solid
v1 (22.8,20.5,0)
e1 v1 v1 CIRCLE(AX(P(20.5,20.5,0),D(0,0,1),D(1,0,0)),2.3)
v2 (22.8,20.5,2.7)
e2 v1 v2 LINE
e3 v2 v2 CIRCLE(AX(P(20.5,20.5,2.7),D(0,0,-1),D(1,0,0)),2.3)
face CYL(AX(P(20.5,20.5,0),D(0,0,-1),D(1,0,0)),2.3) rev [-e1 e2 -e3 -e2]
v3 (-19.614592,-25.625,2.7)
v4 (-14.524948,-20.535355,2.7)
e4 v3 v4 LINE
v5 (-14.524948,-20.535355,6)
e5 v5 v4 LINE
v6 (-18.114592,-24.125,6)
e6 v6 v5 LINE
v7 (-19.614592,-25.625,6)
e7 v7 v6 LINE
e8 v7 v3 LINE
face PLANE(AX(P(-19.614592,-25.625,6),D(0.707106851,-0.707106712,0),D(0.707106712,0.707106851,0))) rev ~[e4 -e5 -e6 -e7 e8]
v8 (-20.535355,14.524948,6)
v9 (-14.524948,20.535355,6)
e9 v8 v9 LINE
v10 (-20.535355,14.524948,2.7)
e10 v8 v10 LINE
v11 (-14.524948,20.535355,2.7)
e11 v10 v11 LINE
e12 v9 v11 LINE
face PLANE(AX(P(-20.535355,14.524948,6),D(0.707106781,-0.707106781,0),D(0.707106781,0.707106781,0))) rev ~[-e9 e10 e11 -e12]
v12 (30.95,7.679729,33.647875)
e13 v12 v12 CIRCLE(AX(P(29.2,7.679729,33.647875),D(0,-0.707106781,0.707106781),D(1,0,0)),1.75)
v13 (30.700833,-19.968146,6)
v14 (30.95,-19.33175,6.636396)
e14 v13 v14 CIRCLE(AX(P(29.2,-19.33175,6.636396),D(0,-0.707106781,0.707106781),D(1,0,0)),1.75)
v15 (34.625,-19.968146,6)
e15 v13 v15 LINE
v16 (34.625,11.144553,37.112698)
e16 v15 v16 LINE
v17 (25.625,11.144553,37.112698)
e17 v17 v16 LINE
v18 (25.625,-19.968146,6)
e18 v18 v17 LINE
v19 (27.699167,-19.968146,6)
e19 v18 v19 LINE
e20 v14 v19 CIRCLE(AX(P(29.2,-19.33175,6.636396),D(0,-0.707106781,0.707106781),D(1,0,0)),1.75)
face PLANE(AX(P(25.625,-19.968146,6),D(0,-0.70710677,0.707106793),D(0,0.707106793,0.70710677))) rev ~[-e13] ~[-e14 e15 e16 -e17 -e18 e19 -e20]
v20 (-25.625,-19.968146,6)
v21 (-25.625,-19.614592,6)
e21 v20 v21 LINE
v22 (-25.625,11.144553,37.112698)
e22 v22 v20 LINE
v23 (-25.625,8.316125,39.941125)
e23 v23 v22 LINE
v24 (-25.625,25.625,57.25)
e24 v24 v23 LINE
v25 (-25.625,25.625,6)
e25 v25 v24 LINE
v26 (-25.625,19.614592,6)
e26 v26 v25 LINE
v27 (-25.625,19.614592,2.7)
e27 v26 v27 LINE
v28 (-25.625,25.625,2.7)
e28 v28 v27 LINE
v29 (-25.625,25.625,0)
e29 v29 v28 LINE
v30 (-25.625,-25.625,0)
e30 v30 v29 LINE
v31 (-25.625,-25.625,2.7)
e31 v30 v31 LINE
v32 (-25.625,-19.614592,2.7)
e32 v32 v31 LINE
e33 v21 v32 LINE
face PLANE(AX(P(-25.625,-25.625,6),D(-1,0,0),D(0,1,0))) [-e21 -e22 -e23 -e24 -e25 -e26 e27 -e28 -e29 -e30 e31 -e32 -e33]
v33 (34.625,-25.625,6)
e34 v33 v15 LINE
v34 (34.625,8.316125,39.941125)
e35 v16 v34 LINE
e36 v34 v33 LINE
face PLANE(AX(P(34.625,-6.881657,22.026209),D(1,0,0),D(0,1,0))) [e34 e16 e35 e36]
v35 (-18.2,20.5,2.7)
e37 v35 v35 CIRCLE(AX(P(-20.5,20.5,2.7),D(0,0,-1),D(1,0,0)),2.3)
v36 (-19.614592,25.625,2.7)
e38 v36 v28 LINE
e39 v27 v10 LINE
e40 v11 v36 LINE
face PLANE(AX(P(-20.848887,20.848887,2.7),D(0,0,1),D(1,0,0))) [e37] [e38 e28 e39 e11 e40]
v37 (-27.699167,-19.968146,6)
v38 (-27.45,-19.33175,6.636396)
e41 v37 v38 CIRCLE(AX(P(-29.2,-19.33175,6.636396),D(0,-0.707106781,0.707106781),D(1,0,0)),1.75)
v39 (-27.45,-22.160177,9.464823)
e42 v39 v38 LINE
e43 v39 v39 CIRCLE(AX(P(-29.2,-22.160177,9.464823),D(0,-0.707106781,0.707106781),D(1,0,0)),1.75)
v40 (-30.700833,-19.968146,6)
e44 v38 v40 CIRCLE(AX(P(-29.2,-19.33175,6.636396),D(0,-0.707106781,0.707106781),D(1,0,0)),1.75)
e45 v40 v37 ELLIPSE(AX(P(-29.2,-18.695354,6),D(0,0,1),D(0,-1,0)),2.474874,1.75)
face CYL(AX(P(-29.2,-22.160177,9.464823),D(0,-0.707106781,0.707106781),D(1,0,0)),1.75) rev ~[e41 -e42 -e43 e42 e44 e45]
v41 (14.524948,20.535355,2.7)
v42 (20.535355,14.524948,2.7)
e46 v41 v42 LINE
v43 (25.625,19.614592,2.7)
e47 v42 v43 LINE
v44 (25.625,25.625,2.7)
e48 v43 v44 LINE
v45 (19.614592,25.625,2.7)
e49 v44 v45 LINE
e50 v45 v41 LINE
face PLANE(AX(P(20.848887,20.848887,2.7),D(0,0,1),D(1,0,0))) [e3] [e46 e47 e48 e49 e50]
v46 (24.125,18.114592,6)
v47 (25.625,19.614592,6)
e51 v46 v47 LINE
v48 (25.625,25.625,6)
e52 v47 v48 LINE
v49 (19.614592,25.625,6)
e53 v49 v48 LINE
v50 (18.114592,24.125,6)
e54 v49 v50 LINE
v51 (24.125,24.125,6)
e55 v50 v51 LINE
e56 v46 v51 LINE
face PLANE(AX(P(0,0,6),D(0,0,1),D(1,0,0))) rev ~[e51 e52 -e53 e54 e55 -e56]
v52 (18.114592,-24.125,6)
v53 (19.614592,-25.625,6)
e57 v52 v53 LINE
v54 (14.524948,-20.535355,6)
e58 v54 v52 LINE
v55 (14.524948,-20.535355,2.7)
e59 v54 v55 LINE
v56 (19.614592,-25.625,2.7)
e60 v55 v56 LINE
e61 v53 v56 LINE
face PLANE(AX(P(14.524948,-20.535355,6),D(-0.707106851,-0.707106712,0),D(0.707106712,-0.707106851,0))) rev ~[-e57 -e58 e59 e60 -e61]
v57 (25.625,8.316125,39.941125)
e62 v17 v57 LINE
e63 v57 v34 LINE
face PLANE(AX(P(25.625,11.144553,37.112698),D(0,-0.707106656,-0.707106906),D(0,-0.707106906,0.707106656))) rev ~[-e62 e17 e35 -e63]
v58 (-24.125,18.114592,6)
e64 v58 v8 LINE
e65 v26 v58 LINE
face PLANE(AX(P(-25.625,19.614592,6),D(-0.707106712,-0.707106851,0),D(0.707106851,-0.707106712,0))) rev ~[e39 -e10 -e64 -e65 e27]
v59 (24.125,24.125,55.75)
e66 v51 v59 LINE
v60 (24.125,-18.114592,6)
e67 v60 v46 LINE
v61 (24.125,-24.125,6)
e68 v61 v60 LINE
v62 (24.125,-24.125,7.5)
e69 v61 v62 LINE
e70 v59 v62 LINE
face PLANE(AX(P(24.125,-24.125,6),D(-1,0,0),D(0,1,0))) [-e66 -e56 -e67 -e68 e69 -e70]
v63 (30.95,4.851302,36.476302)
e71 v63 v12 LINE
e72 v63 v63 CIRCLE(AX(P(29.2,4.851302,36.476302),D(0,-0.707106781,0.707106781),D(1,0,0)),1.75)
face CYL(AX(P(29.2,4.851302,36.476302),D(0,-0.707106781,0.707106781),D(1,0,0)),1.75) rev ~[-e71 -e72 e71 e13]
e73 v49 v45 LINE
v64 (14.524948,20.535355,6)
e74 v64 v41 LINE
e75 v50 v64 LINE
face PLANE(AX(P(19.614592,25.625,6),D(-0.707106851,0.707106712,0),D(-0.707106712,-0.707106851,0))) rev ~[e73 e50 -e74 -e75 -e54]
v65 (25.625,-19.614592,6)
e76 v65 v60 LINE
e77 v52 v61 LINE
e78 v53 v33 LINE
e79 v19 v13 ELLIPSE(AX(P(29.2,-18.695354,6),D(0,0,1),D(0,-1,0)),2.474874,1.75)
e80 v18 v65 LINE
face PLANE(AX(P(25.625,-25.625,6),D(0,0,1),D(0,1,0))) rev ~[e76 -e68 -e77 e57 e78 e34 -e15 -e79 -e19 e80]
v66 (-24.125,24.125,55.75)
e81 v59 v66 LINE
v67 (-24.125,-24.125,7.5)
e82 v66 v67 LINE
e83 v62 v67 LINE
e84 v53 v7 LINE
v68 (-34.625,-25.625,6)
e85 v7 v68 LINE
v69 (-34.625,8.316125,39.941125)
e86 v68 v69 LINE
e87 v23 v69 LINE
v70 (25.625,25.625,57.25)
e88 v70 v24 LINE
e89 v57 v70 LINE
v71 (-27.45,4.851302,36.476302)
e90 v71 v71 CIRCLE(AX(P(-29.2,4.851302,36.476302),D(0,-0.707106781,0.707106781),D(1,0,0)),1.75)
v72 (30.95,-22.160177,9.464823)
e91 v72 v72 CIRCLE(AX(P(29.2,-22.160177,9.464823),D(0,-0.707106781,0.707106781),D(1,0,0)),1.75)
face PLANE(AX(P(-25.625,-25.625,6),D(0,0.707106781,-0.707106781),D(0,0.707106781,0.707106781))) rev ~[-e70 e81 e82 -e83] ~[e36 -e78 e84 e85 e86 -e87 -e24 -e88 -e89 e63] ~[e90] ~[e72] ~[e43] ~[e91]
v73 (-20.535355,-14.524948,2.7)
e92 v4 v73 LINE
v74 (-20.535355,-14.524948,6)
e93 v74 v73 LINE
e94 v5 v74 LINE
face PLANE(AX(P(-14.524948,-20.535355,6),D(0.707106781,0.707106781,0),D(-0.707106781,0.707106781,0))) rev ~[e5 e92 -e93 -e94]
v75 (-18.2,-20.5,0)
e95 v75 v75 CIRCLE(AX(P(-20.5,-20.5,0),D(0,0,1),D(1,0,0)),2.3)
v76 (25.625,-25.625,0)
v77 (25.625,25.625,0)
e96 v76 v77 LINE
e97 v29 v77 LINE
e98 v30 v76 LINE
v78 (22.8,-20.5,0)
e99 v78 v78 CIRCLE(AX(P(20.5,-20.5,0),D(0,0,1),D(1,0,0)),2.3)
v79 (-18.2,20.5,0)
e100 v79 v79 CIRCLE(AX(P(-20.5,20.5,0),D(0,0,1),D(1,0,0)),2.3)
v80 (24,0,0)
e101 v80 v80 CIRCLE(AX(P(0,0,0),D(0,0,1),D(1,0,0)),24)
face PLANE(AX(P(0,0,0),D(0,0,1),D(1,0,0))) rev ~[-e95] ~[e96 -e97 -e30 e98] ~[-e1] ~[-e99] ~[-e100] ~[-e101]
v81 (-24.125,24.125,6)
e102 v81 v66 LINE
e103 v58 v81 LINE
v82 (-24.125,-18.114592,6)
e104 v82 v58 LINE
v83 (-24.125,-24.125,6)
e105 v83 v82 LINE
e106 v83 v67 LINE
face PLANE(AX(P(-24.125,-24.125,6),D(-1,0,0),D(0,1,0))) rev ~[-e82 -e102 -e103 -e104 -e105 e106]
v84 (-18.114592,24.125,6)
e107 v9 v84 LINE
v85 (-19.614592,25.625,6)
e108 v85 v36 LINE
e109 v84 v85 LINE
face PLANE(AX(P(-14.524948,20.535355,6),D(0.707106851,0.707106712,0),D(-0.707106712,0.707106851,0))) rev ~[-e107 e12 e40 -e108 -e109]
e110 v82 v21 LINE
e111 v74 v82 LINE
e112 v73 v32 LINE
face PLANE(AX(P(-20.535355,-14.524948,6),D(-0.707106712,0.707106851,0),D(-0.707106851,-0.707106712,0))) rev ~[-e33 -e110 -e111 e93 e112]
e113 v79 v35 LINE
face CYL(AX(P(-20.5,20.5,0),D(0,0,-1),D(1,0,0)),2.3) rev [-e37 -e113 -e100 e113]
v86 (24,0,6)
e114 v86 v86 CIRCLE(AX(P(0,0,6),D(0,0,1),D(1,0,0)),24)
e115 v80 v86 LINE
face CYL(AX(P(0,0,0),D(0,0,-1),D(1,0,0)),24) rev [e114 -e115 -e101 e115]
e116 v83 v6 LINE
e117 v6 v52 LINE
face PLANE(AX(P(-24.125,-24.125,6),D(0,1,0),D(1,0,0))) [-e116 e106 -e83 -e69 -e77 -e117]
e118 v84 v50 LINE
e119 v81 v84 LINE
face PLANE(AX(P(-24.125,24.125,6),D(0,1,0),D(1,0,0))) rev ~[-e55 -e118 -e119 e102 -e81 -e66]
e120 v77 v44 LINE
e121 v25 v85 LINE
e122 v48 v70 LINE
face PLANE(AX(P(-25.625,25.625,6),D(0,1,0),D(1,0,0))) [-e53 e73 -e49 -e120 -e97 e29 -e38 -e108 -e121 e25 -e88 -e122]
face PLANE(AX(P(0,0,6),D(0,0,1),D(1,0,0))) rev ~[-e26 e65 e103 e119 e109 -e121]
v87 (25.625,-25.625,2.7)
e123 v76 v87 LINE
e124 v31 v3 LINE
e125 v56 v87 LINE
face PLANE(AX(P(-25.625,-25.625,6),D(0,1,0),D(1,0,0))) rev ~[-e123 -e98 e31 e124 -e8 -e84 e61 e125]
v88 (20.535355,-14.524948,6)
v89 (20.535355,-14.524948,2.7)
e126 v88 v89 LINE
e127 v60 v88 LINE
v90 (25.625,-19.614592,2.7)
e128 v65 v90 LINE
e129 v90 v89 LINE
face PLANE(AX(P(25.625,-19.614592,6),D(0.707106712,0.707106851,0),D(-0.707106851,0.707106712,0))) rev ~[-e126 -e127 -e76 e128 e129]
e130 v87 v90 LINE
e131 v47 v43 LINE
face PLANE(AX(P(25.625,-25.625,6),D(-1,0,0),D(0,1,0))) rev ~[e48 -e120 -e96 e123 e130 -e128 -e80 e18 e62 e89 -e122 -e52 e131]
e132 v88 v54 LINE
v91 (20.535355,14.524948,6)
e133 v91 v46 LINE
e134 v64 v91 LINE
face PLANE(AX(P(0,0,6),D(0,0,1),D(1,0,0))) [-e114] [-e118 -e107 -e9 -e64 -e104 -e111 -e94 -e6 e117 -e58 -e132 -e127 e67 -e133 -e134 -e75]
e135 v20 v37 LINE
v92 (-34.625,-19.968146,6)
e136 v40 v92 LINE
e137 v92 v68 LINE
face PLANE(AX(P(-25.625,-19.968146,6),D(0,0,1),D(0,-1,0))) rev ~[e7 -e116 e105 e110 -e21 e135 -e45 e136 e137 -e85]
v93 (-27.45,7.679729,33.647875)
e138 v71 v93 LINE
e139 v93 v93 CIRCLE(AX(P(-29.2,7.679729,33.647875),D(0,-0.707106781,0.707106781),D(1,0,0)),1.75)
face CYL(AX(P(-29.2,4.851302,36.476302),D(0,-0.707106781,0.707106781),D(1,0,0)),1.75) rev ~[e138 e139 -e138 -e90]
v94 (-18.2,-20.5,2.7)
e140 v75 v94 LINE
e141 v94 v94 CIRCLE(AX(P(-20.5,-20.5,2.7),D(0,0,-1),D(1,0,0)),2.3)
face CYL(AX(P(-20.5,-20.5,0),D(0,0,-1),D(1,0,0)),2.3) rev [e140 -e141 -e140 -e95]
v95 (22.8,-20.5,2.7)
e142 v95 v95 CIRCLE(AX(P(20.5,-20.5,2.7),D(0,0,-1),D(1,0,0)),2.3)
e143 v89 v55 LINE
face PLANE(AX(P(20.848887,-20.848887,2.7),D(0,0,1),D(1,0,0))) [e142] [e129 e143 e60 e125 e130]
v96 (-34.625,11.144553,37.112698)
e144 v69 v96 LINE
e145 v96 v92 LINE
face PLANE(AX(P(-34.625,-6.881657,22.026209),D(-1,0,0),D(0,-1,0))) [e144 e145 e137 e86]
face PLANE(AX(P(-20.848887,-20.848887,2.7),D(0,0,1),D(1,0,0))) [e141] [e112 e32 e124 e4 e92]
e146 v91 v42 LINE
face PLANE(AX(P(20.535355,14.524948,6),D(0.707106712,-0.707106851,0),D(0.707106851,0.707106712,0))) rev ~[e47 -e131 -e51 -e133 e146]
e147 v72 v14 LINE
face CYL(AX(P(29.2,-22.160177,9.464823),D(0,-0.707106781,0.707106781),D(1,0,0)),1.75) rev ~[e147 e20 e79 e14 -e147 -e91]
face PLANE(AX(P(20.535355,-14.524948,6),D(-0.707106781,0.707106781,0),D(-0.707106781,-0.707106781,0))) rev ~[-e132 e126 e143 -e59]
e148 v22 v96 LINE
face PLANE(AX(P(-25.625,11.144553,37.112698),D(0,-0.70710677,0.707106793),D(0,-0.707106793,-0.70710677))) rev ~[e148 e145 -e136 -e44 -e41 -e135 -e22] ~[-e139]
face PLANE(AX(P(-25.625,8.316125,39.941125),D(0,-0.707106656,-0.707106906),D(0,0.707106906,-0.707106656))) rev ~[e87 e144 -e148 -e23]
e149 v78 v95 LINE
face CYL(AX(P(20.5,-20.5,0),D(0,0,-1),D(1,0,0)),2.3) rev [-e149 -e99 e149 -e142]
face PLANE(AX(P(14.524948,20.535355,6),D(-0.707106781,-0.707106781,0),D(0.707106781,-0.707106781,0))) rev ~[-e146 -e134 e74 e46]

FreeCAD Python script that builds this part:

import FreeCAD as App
import Part
import Sketcher
Q = App.Units.Quantity


def add_polygon(sketch, points):
    """Adds a closed chain of lines whose ends are joined by coincident constraints."""
    first, n = sketch.GeometryCount, len(points)
    for a, b in zip(points, points[1:] + points[:1]):
        sketch.addGeometry(Part.LineSegment(App.Vector(*a, 0), App.Vector(*b, 0)), False)
    for i in range(n):
        sketch.addConstraint(Sketcher.Constraint("Coincident", first + i, 2, first + (i + 1) % n, 1))

doc = App.newDocument("Part")
body = doc.addObject("PartDesign::Body", "Body")

sketch1 = body.newObject("Sketcher::SketchObject", "Sketch")
sketch1.AttachmentSupport = (doc.getObject("XY_Plane"), [""])
sketch1.MapMode = "FlatFace"
add_polygon(sketch1, [(-25.6, 25.6), (-25.6, -25.6), (25.6, -25.6), (25.6, 25.6)])
sketch1.addGeometry(Part.Circle(App.Vector(-20.5, -20.5, 0), App.Vector(0, 0, 1), 2.3), False)
sketch1.addGeometry(Part.Circle(App.Vector(20.5, -20.5, 0), App.Vector(0, 0, 1), 2.3), False)
sketch1.addGeometry(Part.Circle(App.Vector(-20.5, 20.5, 0), App.Vector(0, 0, 1), 2.3), False)
sketch1.addGeometry(Part.Circle(App.Vector(0, 0, 0), App.Vector(0, 0, 1), 24), False)
sketch1.addGeometry(Part.Circle(App.Vector(20.5, 20.5, 0), App.Vector(0, 0, 1), 2.3), False)
sketch1.addConstraint([
    Sketcher.Constraint("Vertical", 0),
    Sketcher.Constraint("Horizontal", 1),
    Sketcher.Constraint("Vertical", 2),
    Sketcher.Constraint("Horizontal", 3),
    Sketcher.Constraint("Coincident", 7, 3, -1, 1),
    Sketcher.Constraint("Equal", 4, 5),
    Sketcher.Constraint("Equal", 5, 6),
    Sketcher.Constraint("Equal", 6, 8),
    Sketcher.Constraint("Symmetric", 5, 3, 6, 3, -1, 1),
    Sketcher.Constraint("Symmetric", 4, 3, 8, 3, -1, 1),
    Sketcher.Constraint("Symmetric", 0, 2, 2, 2, -1, 1),
    Sketcher.Constraint("Symmetric", 4, 3, 5, 3, -2),
    Sketcher.Constraint("Equal", 3, 0),
    Sketcher.Constraint("Diameter", 7, Q("48 mm")),
    Sketcher.Constraint("Diameter", 4, Q("4.6 mm")),
    Sketcher.Constraint("DistanceX", 4, 3, 5, 3, Q("41 mm")),
    Sketcher.Constraint("DistanceY", 4, 3, 6, 3, Q("41 mm")),
    Sketcher.Constraint("DistanceX", 1, 1, 1, 2, Q("51.25 mm")),
])
pad1 = body.newObject("PartDesign::Pad", "Pad")
pad1.Profile = sketch1
pad1.Length = 6

sketch2 = body.newObject("Sketcher::SketchObject", "Sketch001")
sketch2.AttachmentSupport = (doc.getObject("XY_Plane"), [""])
sketch2.MapMode = "FlatFace"
sketch2.AttachmentOffset = App.Placement(App.Vector(0, 0, 6), App.Rotation())
add_polygon(sketch2, [(-26, 26), (-26, 20), (-21, 15), (-15, 21), (-20, 26)])
add_polygon(sketch2, [(20, 26), (15, 21), (21, 15), (26, 20), (26, 26)])
add_polygon(sketch2, [(26, -26), (26, -20), (21, -15), (15, -21), (20, -26)])
add_polygon(sketch2, [(-15, -21), (-21, -15), (-26, -20), (-26, -26), (-20, -26)])
sketch2.addConstraint([
    Sketcher.Constraint("Vertical", 0),
    Sketcher.Constraint("Horizontal", 4),
    Sketcher.Constraint("Vertical", 8),
    Sketcher.Constraint("Horizontal", 9),
    Sketcher.Constraint("Vertical", 10),
    Sketcher.Constraint("Horizontal", 14),
    Sketcher.Constraint("Vertical", 17),
    Sketcher.Constraint("Horizontal", 18),
    Sketcher.Constraint("Symmetric", 0, 2, 10, 2, -1, 1),
    Sketcher.Constraint("Symmetric", 1, 2, 11, 2, -1, 1),
    Sketcher.Constraint("Symmetric", 2, 2, 12, 2, -1, 1),
    Sketcher.Constraint("Symmetric", 3, 2, 13, 2, -1, 1),
    Sketcher.Constraint("Symmetric", 6, 2, 15, 2, -1, 1),
    Sketcher.Constraint("Symmetric", 7, 2, 16, 2, -1, 1),
    Sketcher.Constraint("Symmetric", 9, 2, 18, 2, -1, 1),
    Sketcher.Constraint("Symmetric", 5, 2, 19, 2, -1, 1),
    Sketcher.Constraint("Symmetric", 2, 2, 5, 2, -2),
    Sketcher.Constraint("Symmetric", 1, 2, 6, 2, -2),
    Sketcher.Constraint("Symmetric", 0, 2, 7, 2, -2),
    Sketcher.Constraint("Symmetric", 3, 2, 9, 2, -2),
    Sketcher.Constraint("Perpendicular", 1, 2),
    Sketcher.Constraint("Perpendicular", 2, 3),
    Sketcher.Constraint("Perpendicular", 3, 5),
    Sketcher.Constraint("Equal", 18, 0),
    Sketcher.Constraint("Distance", 2, Q("8.499999 mm")),
    Sketcher.Constraint("DistanceX", 0, 2, -1, 1, Q("25.625 mm")),
    Sketcher.Constraint("DistanceY", -1, 1, 3, 2, Q("25.625 mm")),
    Sketcher.Constraint("DistanceX", 3, 2, 5, 2, Q("34.13954 mm")),
])
pocket1 = body.newObject("PartDesign::Pocket", "Pocket")
pocket1.Profile = sketch2
pocket1.Length = 3.3

sketch3 = body.newObject("Sketcher::SketchObject", "Sketch002")
sketch3.AttachmentSupport = (doc.getObject("XY_Plane"), [""])
sketch3.MapMode = "FlatFace"
sketch3.AttachmentOffset = App.Placement(App.Vector(0, 0, 6), App.Rotation())
add_polygon(sketch3, [(-26, 26), (-26, -26), (26, -26), (26, 26)])
add_polygon(sketch3, [(24, -24), (-24, -24), (-24, 24), (24, 24)])
sketch3.addConstraint([
    Sketcher.Constraint("Vertical", 0),
    Sketcher.Constraint("Horizontal", 1),
    Sketcher.Constraint("Vertical", 2),
    Sketcher.Constraint("Horizontal", 3),
    Sketcher.Constraint("Horizontal", 4),
    Sketcher.Constraint("Vertical", 5),
    Sketcher.Constraint("Horizontal", 6),
    Sketcher.Constraint("Vertical", 7),
    Sketcher.Constraint("Symmetric", 0, 2, 2, 2, -1, 1),
    Sketcher.Constraint("Symmetric", 4, 2, 6, 2, -1, 1),
    Sketcher.Constraint("Equal", 3, 0),
    Sketcher.Constraint("Equal", 6, 5),
    Sketcher.Constraint("DistanceX", 1, 1, 1, 2, Q("51.25 mm")),
    Sketcher.Constraint("DistanceX", 4, 2, 4, 1, Q("48.25 mm")),
])
pad2 = body.newObject("PartDesign::Pad", "Pad001")
pad2.Profile = sketch3
pad2.Length = 55

sketch4 = body.newObject("Sketcher::SketchObject", "Sketch003")
sketch4.AttachmentSupport = (doc.getObject("YZ_Plane"), [""])
sketch4.MapMode = "FlatFace"
sketch4.AttachmentOffset = App.Placement(App.Vector(0, 0, 25.625), App.Rotation())
add_polygon(sketch4, [(-25.6, 61), (-25.6, 6), (25.6, 57.2), (25.6, 61)])
sketch4.addConstraint([
    Sketcher.Constraint("Vertical", 0),
    Sketcher.Constraint("Vertical", 2),
    Sketcher.Constraint("Horizontal", 3),
    Sketcher.Constraint("DistanceY", 0, 2, 0, 1, Q("55 mm")),
    Sketcher.Constraint("Angle", 1, Q("45 deg")),
    Sketcher.Constraint("DistanceY", -1, 1, 0, 2, Q("6 mm")),
    Sketcher.Constraint("DistanceX", 3, 2, 3, 1, Q("51.25 mm")),
    Sketcher.Constraint("DistanceX", 0, 2, -1, 1, Q("25.625 mm")),
])
pocket2 = body.newObject("PartDesign::Pocket", "Pocket001")
pocket2.Profile = sketch4
pocket2.Type = "ThroughAll"

sketch5 = body.newObject("Sketcher::SketchObject", "Sketch004")
sketch5.AttachmentSupport = (doc.getObject("YZ_Plane"), [""])
sketch5.MapMode = "FlatFace"
sketch5.AttachmentOffset = App.Placement(App.Vector(0, 0, 25.625), App.Rotation())
add_polygon(sketch5, [(8.3, 39.9), (-25.6, 6), (-20, 6), (11.1, 37.1)])
sketch5.addConstraint([
    Sketcher.Constraint("Horizontal", 1),
    Sketcher.Constraint("Parallel", 0, 2),
    Sketcher.Constraint("Perpendicular", 2, 3),
    Sketcher.Constraint("Angle", 0, Q("-135 deg")),
    Sketcher.Constraint("Distance", 0, Q("47.999999 mm")),
    Sketcher.Constraint("Distance", 2, Q("44 mm")),
    Sketcher.Constraint("DistanceY", -1, 1, 0, 2, Q("6 mm")),
    Sketcher.Constraint("DistanceX", 0, 2, -1, 1, Q("25.625 mm")),
])
pad3 = body.newObject("PartDesign::Pad", "Pad002")
pad3.Profile = sketch5
pad3.Length = 9

sketch6 = body.newObject("Sketcher::SketchObject", "Sketch005")
sketch6.AttachmentSupport = (doc.getObject("YZ_Plane"), [""])
sketch6.MapMode = "FlatFace"
sketch6.AttachmentOffset = App.Placement(App.Vector(0, 0, -25.625), App.Rotation())
add_polygon(sketch6, [(-20, 6), (-25.6, 6), (8.3, 39.9), (11.1, 37.1)])
sketch6.addConstraint([
    Sketcher.Constraint("Horizontal", 0),
    Sketcher.Constraint("Perpendicular", 1, 2),
    Sketcher.Constraint("Perpendicular", 2, 3),
    Sketcher.Constraint("Angle", 1, Q("45 deg")),
    Sketcher.Constraint("Distance", 1, Q("47.999999 mm")),
    Sketcher.Constraint("Distance", 2, Q("4.000001 mm")),
    Sketcher.Constraint("DistanceY", -1, 1, 0, 2, Q("6 mm")),
    Sketcher.Constraint("DistanceX", 0, 2, -1, 1, Q("25.625 mm")),
])
pad4 = body.newObject("PartDesign::Pad", "Pad003")
pad4.Profile = sketch6
pad4.Length = 9
pad4.Reversed = True

sketch7 = body.newObject("Sketcher::SketchObject", "Sketch006")
sketch7.Placement = App.Placement(App.Vector(0, -15.8125, 15.8125), App.Rotation(App.Vector(1, 0, 0), App.Vector(0, 0.707106781, 0.707106781), App.Vector(0, -0.707106781, 0.707106781), "ZXY"))
sketch7.addGeometry([
    Part.Circle(App.Vector(29.2, 29.2, 0), App.Vector(0, 0, 1), 1.8),
    Part.Circle(App.Vector(29.2, -9, 0), App.Vector(0, 0, 1), 1.8),
    Part.Circle(App.Vector(-29.2, 29.2, 0), App.Vector(0, 0, 1), 1.8),
    Part.Circle(App.Vector(-29.2, -9, 0), App.Vector(0, 0, 1), 1.8),
], False)
sketch7.addConstraint([
    Sketcher.Constraint("Equal", 0, 1),
    Sketcher.Constraint("Equal", 1, 2),
    Sketcher.Constraint("Equal", 2, 3),
    Sketcher.Constraint("Symmetric", 0, 3, 2, 3, -2),
    Sketcher.Constraint("Symmetric", 1, 3, 3, 3, -2),
    Sketcher.Constraint("Vertical", 0, 3, 1, 3),
    Sketcher.Constraint("Diameter", 0, Q("3.5 mm")),
    Sketcher.Constraint("DistanceX", -1, 1, 0, 3, Q("29.2 mm")),
    Sketcher.Constraint("DistanceY", 1, 3, 0, 3, Q("38.2 mm")),
    Sketcher.Constraint("DistanceY", -1, 1, 0, 3, Q("29.223029 mm")),
])
pocket3 = body.newObject("PartDesign::Pocket", "Pocket002")
pocket3.Profile = sketch7
pocket3.Type = "ThroughAll"

doc.recompute()
